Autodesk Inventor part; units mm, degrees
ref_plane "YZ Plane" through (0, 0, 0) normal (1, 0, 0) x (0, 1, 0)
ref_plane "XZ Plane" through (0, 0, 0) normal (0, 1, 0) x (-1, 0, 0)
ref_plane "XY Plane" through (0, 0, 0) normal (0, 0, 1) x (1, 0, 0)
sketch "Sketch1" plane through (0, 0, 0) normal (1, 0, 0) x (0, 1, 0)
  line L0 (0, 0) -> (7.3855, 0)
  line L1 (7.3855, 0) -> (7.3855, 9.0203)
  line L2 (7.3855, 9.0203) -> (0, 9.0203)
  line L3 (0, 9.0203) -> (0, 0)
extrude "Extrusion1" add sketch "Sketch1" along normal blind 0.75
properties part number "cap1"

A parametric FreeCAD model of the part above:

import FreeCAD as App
import Part
import Sketcher
from FreeCAD import Vector


def add_polygon(sketch, points):
    """Adds a closed chain of lines whose ends are joined by coincident constraints."""
    first, n = sketch.GeometryCount, len(points)
    for a, b in zip(points, points[1:] + points[:1]):
        sketch.addGeometry(Part.LineSegment(App.Vector(*a, 0), App.Vector(*b, 0)), False)
    for i in range(n):
        sketch.addConstraint(Sketcher.Constraint("Coincident", first + i, 2, first + (i + 1) % n, 1))

doc = App.newDocument("Part")
params = doc.addObject("Spreadsheet::Sheet", "Params")
for row, (alias, value) in enumerate([
    ("pad1_length", "0.75 mm"),
], start=1):
    params.set(f"A{row}", alias)
    params.set(f"B{row}", "=" + value)
    params.setAlias(f"B{row}", alias)

body = doc.addObject("PartDesign::Body", "Body")

# Sketch on YZ plane
sketch1 = body.newObject("Sketcher::SketchObject", "Sketch")
sketch1.AttachmentSupport = (doc.getObject("YZ_Plane"), [""])
sketch1.MapMode = "FlatFace"
add_polygon(sketch1, [(0, 9), (0, 0), (7, 0), (7, 9)])  # lines 0-3
sketch1.addConstraint(Sketcher.Constraint("Vertical", 0))
sketch1.addConstraint(Sketcher.Constraint("Horizontal", 1))
sketch1.addConstraint(Sketcher.Constraint("Vertical", 2))
sketch1.addConstraint(Sketcher.Constraint("Horizontal", 3))
sketch1.addConstraint(Sketcher.Constraint("Coincident", 0, 2, -1, 1))
sketch1.addConstraint(Sketcher.Constraint("DistanceX", 1, 1, 1, 2, 7.3855))
sketch1.addConstraint(Sketcher.Constraint("DistanceY", 0, 2, 0, 1, 9.0203))
pad1 = body.newObject("PartDesign::Pad", "Pad")
pad1.Profile = sketch1
pad1.setExpression("Length", "Params.pad1_length")

doc.recompute()
